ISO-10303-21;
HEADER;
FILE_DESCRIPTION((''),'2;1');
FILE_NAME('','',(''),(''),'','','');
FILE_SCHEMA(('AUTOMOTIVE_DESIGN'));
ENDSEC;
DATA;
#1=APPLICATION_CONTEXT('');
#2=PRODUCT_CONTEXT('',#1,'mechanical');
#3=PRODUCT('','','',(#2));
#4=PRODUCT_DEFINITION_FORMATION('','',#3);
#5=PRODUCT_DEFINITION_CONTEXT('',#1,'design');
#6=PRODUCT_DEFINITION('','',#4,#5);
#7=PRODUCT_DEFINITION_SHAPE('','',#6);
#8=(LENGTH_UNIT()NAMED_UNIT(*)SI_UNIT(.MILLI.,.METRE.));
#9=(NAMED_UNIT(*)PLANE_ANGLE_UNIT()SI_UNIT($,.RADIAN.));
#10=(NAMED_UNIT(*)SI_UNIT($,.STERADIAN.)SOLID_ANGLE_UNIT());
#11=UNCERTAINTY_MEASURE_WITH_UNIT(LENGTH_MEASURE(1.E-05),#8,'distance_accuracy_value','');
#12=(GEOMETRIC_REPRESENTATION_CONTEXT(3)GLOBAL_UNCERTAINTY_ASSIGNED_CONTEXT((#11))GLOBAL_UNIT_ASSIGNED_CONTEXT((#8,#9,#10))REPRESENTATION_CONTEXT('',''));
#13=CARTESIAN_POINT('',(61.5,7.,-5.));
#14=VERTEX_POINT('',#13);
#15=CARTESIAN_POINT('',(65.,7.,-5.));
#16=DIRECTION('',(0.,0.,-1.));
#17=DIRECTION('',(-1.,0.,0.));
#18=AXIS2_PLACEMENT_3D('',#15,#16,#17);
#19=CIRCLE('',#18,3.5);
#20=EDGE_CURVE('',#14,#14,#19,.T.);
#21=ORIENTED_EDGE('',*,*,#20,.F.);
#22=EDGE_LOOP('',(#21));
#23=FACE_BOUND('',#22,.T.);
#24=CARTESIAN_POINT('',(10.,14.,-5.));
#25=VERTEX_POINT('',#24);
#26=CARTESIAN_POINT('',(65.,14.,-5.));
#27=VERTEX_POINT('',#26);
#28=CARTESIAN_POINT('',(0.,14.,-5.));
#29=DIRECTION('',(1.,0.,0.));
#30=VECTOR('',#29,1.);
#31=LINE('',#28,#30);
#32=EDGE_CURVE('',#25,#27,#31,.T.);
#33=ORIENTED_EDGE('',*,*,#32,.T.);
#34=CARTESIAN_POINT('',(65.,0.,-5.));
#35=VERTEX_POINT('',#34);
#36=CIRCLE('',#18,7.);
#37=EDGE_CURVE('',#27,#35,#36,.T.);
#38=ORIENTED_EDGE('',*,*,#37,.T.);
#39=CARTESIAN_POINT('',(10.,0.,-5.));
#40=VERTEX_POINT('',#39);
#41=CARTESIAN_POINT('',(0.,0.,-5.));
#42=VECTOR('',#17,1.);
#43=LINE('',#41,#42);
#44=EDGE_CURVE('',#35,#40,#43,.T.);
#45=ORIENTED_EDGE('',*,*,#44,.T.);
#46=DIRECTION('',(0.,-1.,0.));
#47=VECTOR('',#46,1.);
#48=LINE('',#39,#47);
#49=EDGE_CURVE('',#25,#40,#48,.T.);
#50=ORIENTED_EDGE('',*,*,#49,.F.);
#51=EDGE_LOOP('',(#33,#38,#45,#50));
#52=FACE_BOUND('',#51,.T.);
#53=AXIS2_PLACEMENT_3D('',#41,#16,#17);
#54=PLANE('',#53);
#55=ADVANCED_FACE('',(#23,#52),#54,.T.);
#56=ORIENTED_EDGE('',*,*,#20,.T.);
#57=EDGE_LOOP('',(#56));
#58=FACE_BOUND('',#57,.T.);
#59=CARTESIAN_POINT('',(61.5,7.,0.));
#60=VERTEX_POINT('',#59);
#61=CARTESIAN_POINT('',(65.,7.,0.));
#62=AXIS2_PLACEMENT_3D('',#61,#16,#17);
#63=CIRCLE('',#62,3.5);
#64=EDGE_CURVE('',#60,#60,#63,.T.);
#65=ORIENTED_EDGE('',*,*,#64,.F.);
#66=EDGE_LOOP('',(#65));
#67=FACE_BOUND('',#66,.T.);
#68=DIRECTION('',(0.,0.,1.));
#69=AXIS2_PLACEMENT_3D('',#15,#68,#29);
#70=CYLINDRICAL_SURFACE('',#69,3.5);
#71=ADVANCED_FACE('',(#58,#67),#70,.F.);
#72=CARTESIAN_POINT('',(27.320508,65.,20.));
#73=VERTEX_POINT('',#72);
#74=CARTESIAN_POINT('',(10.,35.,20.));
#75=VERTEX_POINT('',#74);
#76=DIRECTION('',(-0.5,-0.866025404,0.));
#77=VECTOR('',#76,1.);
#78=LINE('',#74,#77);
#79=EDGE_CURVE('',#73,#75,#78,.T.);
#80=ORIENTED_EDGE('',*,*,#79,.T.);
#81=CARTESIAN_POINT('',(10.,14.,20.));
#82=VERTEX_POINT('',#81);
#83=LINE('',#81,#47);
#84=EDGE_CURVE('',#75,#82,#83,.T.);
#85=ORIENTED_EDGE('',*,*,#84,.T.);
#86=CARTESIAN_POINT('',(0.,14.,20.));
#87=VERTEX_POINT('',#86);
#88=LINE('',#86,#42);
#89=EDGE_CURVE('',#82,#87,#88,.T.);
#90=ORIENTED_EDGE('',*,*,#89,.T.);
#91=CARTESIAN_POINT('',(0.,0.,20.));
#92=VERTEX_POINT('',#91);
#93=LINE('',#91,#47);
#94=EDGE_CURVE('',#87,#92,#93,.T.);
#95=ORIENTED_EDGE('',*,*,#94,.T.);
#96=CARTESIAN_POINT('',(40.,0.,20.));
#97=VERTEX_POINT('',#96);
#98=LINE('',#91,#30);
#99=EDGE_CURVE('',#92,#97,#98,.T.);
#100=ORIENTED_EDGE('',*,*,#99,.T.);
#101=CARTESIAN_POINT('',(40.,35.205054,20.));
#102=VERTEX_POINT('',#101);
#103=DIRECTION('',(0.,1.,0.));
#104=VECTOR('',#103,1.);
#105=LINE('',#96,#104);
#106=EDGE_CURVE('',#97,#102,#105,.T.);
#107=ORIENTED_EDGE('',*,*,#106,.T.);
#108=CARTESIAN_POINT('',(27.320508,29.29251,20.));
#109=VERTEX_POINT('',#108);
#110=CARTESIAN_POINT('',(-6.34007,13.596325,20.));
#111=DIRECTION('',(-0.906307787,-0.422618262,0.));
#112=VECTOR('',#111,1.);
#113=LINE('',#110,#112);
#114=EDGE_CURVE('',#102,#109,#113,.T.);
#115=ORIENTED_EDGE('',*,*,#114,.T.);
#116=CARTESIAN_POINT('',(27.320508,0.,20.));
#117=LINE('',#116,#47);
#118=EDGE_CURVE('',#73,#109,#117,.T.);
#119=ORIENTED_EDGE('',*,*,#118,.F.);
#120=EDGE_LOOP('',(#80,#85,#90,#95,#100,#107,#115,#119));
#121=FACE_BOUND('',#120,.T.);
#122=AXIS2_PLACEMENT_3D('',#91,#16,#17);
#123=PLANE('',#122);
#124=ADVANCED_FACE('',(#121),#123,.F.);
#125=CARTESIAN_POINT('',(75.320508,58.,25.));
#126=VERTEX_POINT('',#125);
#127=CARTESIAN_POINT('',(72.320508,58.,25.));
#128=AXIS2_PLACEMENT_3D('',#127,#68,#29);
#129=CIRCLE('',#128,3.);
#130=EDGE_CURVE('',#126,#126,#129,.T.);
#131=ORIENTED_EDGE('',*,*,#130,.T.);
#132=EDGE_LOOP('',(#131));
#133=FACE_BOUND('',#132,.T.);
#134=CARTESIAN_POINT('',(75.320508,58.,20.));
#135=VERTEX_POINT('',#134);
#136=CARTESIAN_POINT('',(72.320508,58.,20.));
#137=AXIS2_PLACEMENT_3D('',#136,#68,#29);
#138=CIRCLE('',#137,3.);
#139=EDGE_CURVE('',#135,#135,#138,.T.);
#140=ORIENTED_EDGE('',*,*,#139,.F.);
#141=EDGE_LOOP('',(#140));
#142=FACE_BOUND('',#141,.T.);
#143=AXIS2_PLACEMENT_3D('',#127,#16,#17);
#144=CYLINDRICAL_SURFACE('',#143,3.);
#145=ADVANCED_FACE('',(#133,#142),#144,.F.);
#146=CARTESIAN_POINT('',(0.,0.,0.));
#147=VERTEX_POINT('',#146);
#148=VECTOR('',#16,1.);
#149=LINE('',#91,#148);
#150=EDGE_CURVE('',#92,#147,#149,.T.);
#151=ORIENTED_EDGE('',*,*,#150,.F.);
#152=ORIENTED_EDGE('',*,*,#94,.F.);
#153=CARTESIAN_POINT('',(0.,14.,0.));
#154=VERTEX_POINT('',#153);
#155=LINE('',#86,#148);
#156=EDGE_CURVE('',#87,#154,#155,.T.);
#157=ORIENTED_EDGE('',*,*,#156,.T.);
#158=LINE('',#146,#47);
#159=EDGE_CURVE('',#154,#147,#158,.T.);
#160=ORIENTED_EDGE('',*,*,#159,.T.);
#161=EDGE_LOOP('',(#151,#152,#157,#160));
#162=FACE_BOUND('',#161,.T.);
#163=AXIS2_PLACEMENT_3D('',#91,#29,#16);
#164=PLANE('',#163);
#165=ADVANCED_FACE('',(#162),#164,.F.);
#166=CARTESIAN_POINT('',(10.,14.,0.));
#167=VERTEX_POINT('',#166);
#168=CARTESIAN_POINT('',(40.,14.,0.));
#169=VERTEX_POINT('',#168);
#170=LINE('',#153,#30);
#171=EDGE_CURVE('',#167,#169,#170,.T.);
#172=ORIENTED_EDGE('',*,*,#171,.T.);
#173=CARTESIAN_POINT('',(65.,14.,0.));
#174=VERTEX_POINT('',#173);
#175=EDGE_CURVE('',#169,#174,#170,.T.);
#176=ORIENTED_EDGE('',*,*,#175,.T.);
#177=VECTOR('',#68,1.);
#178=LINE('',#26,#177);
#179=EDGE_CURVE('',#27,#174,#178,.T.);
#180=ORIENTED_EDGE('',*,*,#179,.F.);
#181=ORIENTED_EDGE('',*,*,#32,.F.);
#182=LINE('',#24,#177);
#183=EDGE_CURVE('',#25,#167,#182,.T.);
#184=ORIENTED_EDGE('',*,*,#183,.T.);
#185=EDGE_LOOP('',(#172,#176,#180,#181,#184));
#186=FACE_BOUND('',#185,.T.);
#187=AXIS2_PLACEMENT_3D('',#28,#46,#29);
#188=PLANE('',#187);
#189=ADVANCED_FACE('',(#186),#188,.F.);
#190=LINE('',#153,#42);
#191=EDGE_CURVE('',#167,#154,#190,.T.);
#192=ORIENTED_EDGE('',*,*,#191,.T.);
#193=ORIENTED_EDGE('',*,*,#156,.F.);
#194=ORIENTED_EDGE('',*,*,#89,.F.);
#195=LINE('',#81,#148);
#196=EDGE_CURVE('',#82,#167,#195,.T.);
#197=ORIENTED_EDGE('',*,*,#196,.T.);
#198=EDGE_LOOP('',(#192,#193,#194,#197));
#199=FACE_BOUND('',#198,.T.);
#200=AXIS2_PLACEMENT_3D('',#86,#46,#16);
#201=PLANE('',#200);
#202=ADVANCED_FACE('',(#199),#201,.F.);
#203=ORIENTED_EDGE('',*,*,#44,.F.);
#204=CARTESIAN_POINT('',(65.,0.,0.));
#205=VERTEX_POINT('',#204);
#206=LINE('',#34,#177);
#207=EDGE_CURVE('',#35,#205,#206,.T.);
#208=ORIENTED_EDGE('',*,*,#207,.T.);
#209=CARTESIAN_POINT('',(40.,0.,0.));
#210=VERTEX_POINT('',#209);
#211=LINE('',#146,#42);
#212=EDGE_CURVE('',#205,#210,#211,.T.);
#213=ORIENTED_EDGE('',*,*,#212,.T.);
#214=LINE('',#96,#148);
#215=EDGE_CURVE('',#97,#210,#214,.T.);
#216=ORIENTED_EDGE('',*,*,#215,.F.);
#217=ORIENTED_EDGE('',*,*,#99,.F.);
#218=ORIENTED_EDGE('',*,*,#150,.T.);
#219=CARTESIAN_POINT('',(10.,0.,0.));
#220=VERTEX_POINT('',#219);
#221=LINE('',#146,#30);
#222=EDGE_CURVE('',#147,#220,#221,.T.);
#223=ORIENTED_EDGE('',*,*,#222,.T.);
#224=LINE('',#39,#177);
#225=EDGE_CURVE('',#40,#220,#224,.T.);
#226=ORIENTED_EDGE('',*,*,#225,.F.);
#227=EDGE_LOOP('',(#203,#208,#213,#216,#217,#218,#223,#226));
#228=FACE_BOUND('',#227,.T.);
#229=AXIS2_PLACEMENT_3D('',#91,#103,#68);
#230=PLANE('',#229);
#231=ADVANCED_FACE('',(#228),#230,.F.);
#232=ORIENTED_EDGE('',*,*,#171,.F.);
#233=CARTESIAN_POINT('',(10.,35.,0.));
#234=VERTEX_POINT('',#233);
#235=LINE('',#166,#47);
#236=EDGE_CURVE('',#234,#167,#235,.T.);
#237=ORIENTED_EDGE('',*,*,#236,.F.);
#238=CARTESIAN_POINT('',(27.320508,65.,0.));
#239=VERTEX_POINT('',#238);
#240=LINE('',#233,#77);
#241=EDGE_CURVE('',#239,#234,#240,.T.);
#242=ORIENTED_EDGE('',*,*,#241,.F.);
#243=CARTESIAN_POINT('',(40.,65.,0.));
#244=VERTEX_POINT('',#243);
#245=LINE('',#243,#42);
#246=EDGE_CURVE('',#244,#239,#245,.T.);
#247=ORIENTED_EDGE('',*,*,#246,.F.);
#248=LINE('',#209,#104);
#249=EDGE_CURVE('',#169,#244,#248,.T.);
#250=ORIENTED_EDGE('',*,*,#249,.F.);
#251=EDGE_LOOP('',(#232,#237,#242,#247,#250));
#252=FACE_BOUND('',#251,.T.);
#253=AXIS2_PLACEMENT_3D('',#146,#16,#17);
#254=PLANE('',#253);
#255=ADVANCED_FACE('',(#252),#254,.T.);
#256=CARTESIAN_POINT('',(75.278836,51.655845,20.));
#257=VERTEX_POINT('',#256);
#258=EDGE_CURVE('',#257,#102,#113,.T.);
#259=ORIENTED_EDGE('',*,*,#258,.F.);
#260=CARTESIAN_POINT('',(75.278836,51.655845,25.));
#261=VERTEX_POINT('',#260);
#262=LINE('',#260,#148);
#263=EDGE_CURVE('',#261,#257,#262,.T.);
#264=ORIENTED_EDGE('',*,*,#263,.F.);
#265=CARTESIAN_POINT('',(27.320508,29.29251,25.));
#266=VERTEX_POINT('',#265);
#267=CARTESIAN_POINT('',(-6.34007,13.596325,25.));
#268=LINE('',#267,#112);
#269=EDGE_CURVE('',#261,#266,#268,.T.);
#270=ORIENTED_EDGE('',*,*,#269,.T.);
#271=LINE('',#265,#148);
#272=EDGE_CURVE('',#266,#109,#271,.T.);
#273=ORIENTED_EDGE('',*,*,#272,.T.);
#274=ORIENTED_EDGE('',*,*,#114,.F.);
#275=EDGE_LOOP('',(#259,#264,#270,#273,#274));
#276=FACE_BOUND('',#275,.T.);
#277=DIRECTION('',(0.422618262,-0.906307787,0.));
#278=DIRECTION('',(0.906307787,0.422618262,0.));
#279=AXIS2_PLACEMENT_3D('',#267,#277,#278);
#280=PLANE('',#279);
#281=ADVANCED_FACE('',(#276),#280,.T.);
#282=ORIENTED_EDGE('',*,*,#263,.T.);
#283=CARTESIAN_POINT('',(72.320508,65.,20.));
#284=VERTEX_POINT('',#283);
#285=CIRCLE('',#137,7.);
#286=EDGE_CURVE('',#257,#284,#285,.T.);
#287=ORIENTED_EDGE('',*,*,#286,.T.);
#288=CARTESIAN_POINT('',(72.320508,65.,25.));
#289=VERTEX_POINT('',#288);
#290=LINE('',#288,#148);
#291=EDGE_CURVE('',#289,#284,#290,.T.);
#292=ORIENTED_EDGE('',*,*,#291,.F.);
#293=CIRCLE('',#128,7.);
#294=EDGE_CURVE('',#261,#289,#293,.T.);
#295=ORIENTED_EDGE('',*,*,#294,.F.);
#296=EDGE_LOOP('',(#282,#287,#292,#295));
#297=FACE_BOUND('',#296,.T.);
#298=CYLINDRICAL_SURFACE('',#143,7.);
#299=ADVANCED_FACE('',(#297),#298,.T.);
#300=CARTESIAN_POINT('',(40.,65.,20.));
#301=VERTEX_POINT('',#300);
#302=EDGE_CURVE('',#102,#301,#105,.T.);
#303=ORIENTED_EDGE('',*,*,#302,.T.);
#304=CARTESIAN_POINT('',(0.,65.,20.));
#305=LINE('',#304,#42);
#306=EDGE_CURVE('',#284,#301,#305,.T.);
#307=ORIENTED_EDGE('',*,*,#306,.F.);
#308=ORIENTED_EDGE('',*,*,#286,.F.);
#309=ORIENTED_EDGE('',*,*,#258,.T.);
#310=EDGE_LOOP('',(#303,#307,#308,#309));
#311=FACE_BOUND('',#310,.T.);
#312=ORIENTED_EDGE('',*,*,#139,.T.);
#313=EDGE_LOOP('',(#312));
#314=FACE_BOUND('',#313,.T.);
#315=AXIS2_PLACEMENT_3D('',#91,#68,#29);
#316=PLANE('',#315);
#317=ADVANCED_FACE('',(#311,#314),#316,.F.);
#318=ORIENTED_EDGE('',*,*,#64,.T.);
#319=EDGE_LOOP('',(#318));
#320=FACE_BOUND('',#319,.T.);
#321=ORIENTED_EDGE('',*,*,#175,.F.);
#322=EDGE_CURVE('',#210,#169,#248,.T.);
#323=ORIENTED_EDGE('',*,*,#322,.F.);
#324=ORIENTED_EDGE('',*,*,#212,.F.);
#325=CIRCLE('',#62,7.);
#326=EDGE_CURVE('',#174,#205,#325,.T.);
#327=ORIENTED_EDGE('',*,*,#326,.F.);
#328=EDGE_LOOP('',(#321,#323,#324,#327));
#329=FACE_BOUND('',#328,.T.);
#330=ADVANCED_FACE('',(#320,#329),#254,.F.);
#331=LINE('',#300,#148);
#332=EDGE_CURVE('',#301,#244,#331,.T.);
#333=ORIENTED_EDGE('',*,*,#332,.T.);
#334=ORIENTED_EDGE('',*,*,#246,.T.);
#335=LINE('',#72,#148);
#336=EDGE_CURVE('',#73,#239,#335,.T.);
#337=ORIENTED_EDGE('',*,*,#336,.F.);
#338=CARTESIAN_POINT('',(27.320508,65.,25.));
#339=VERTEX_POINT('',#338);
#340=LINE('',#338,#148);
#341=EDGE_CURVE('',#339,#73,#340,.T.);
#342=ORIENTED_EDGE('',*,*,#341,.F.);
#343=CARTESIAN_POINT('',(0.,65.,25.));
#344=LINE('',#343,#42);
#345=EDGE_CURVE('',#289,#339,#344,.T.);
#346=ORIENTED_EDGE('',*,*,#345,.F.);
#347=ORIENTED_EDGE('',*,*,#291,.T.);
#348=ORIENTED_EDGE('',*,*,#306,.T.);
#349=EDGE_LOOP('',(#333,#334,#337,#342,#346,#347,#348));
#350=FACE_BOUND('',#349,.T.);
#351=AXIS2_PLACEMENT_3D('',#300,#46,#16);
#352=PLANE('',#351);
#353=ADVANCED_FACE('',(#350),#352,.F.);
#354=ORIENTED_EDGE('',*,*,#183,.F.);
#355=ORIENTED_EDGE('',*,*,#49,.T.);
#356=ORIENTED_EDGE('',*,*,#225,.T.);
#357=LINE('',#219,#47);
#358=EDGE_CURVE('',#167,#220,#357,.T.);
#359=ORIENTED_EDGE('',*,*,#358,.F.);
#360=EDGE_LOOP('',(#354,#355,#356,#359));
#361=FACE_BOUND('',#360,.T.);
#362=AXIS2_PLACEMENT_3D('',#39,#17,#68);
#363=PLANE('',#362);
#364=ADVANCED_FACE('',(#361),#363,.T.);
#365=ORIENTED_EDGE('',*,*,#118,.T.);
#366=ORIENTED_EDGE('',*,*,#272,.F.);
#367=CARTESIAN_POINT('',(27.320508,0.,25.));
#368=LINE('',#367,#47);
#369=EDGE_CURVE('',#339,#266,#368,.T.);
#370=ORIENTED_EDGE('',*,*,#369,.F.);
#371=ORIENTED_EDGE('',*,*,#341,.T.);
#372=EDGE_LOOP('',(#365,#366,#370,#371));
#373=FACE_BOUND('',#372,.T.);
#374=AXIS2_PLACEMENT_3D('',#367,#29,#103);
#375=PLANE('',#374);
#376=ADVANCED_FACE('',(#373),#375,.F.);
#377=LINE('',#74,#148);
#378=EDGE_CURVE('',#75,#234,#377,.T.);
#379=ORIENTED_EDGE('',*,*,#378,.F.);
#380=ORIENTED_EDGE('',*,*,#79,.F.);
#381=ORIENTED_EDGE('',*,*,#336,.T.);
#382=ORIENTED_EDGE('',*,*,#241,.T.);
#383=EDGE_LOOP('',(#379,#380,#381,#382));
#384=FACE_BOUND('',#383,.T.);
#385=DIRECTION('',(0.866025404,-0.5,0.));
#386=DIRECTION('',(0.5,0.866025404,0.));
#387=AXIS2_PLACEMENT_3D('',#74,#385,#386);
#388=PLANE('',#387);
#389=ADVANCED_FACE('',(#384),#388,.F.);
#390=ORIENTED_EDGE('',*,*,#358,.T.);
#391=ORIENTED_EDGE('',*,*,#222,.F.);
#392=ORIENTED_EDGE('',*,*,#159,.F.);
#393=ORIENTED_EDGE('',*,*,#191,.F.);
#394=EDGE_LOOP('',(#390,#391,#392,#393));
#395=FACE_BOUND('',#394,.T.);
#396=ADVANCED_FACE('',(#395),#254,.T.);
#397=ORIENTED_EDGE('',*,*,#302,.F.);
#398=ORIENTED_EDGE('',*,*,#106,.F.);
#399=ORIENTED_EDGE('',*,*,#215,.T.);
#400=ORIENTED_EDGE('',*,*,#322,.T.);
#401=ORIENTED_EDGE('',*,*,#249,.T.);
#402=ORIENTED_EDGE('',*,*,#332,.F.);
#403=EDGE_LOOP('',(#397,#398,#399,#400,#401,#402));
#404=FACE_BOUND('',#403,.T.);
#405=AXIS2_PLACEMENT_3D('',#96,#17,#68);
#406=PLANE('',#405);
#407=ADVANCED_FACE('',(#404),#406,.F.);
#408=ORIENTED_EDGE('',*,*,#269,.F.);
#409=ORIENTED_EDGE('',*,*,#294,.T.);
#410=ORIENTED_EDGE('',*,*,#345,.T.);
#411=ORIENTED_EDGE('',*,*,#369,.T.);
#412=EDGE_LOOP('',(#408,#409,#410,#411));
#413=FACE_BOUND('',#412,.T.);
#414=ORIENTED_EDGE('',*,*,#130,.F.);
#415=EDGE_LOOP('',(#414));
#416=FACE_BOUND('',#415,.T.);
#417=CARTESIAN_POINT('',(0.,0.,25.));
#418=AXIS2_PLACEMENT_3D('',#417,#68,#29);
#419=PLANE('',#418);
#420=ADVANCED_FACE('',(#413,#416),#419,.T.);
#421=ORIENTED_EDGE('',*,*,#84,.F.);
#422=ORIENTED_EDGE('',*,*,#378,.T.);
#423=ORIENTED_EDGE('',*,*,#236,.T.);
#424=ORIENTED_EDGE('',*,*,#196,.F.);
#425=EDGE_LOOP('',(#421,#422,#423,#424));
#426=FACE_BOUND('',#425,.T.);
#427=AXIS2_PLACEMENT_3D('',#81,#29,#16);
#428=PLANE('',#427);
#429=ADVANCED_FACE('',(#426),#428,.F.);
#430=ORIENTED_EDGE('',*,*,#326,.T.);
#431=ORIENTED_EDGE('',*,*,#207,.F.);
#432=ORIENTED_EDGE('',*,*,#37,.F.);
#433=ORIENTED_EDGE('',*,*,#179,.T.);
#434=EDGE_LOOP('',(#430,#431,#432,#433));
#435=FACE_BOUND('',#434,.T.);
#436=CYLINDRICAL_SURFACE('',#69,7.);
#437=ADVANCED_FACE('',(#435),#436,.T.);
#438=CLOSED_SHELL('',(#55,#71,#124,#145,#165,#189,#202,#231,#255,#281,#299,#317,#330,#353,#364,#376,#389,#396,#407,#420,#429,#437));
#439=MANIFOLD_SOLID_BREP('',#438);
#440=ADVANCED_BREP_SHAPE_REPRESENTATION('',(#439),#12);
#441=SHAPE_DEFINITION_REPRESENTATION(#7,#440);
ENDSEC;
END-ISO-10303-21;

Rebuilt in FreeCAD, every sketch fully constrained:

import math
import FreeCAD as App
import Part
import Sketcher

V = App.Vector
Q = App.Units.Quantity


def add_polygon(sketch, points):
    """Adds a closed chain of lines whose ends are joined by coincident constraints."""
    first, n = sketch.GeometryCount, len(points)
    for a, b in zip(points, points[1:] + points[:1]):
        sketch.addGeometry(Part.LineSegment(App.Vector(*a, 0), App.Vector(*b, 0)), False)
    for i in range(n):
        sketch.addConstraint(Sketcher.Constraint("Coincident", first + i, 2, first + (i + 1) % n, 1))

doc = App.newDocument("Part")
params = doc.addObject("Spreadsheet::Sheet", "Params")
for row, (alias, value) in enumerate([
    ("sketch1_width", "40 mm"),
    ("sketch1_width2", "10 mm"),
    ("sketch1_height", "65 mm"),
    ("sketch1_height2", "21 mm"),
    ("sketch1_height3", "14 mm"),
    ("pad1_length", "20 mm"),
    ("sketch2_diameter", "6 mm"),
    ("sketch2_radius", "7 mm"),
    ("sketch2_width", "45 mm"),
    ("pad2_length", "5 mm"),
    ("sketch3_diameter", "7 mm"),
    ("sketch3_radius", "7 mm"),
    ("sketch3_width", "55 mm"),
    ("pad3_length", "5 mm"),
], start=1):
    params.set(f"A{row}", alias)
    params.set(f"B{row}", "=" + value)
    params.setAlias(f"B{row}", alias)

body = doc.addObject("PartDesign::Body", "Body")

# Sketch on XY plane
sketch1 = doc.addObject("Sketcher::SketchObject", "Sketch")
body.addObject(sketch1)
sketch1.AttachmentSupport = (doc.XY_Plane, [""])
sketch1.MapMode = "FlatFace"
add_polygon(sketch1, [(0, 0), (40, 0), (40, 65), (27, 65), (10, 35), (10, 14), (0, 14)])  # lines 0-6
sketch1.addConstraint(Sketcher.Constraint("Horizontal", 0))
sketch1.addConstraint(Sketcher.Constraint("Vertical", 1))
sketch1.addConstraint(Sketcher.Constraint("Horizontal", 2))
sketch1.addConstraint(Sketcher.Constraint("Vertical", 4))
sketch1.addConstraint(Sketcher.Constraint("Horizontal", 5))
sketch1.addConstraint(Sketcher.Constraint("Vertical", 6))
sketch1.addConstraint(Sketcher.Constraint("Coincident", 6, 2, -1, 1))
sketch1.addConstraint(Sketcher.Constraint("DistanceX", 0, 1, 0, 2, 40.0))
sketch1.addConstraint(Sketcher.Constraint("DistanceX", 5, 2, 5, 1, 10.0))
sketch1.addConstraint(Sketcher.Constraint("DistanceY", 1, 1, 1, 2, 65.0))
sketch1.addConstraint(Sketcher.Constraint("DistanceY", 4, 2, 4, 1, 21.0))
sketch1.addConstraint(Sketcher.Constraint("DistanceY", 6, 2, 6, 1, 14.0))
sketch1.addConstraint(Sketcher.Constraint("Angle", 3, Q("-120 deg")))
sketch1.setExpression("Constraints[14]", "Params.sketch1_width")
sketch1.setExpression("Constraints[15]", "Params.sketch1_width2")
sketch1.setExpression("Constraints[16]", "Params.sketch1_height")
sketch1.setExpression("Constraints[17]", "Params.sketch1_height2")
sketch1.setExpression("Constraints[18]", "Params.sketch1_height3")
pad1 = doc.addObject("PartDesign::Pad", "Pad")
body.addObject(pad1)
pad1.Profile = sketch1
pad1.setExpression("Length", "Params.pad1_length")

# Sketch on XY plane
sketch2 = doc.addObject("Sketcher::SketchObject", "Sketch001")
body.addObject(sketch2)
sketch2.AttachmentSupport = (doc.XY_Plane, [""])
sketch2.MapMode = "FlatFace"
sketch2.AttachmentOffset = App.Placement(V(0, 0, 20), App.Rotation())
sketch2.addGeometry(Part.LineSegment(V(27.3, 65, 0), V(27.3, 29.3, 0)), False)
sketch2.addGeometry(Part.LineSegment(V(27.3, 29.3, 0), V(40, 35.2, 0)), False)
sketch2.addGeometry(Part.LineSegment(V(40, 35.2, 0), V(75.3, 51.7, 0)), False)
sketch2.addGeometry(Part.ArcOfCircle(Part.Circle(V(72.3, 58, 0), V(0, 0, 1), 7), math.radians(-65), math.radians(90)), False)
sketch2.addGeometry(Part.LineSegment(V(72.3, 65, 0), V(27.3, 65, 0)), False)
sketch2.addGeometry(Part.Circle(V(72.3, 58, 0), V(0, 0, 1), 3), False)
sketch2.addConstraint(Sketcher.Constraint("Coincident", 0, 2, 1, 1))
sketch2.addConstraint(Sketcher.Constraint("Coincident", 1, 2, 2, 1))
sketch2.addConstraint(Sketcher.Constraint("Tangent", 2, 2, 3, 1))
sketch2.addConstraint(Sketcher.Constraint("Tangent", 3, 2, 4, 1))
sketch2.addConstraint(Sketcher.Constraint("Coincident", 4, 2, 0, 1))
sketch2.addConstraint(Sketcher.Constraint("Vertical", 0))
sketch2.addConstraint(Sketcher.Constraint("Horizontal", 4))
sketch2.addConstraint(Sketcher.Constraint("Coincident", 5, 3, 3, 3))
sketch2.addConstraint(Sketcher.Constraint("Parallel", 1, 2))
sketch2.addConstraint(Sketcher.Constraint("Diameter", 5, 6.0))
sketch2.addConstraint(Sketcher.Constraint("Radius", 3, 7.0))
sketch2.addConstraint(Sketcher.Constraint("DistanceX", 4, 2, 4, 1, 45.0))
sketch2.addConstraint(Sketcher.Constraint("Angle", 1, Q("25 deg")))
sketch2.addConstraint(Sketcher.Constraint("DistanceY", -1, 1, 3, 3, 58.0))
sketch2.addConstraint(Sketcher.Constraint("DistanceX", -1, 1, 1, 2, 40.0))
sketch2.addConstraint(Sketcher.Constraint("Distance", 1, 13.990271))
sketch2.setExpression("Constraints[9]", "Params.sketch2_diameter")
sketch2.setExpression("Constraints[10]", "Params.sketch2_radius")
sketch2.setExpression("Constraints[11]", "Params.sketch2_width")
pad2 = doc.addObject("PartDesign::Pad", "Pad001")
body.addObject(pad2)
pad2.Profile = sketch2
pad2.setExpression("Length", "Params.pad2_length")

# Sketch on XY plane
sketch3 = doc.addObject("Sketcher::SketchObject", "Sketch002")
body.addObject(sketch3)
sketch3.AttachmentSupport = (doc.XY_Plane, [""])
sketch3.MapMode = "FlatFace"
sketch3.addGeometry(Part.ArcOfCircle(Part.Circle(V(65, 7, 0), V(0, 0, 1), 7), math.radians(-90), math.radians(90)), False)
sketch3.addGeometry(Part.LineSegment(V(65, 0, 0), V(10, 0, 0)), False)
sketch3.addGeometry(Part.LineSegment(V(10, 0, 0), V(10, 14, 0)), False)
sketch3.addGeometry(Part.LineSegment(V(10, 14, 0), V(65, 14, 0)), False)
sketch3.addGeometry(Part.Circle(V(65, 7, 0), V(0, 0, 1), 3.5), False)
sketch3.addConstraint(Sketcher.Constraint("Tangent", 0, 1, 1, 1))
sketch3.addConstraint(Sketcher.Constraint("Coincident", 1, 2, 2, 1))
sketch3.addConstraint(Sketcher.Constraint("Coincident", 2, 2, 3, 1))
sketch3.addConstraint(Sketcher.Constraint("Tangent", 3, 2, 0, 2))
sketch3.addConstraint(Sketcher.Constraint("Horizontal", 1))
sketch3.addConstraint(Sketcher.Constraint("Vertical", 2))
sketch3.addConstraint(Sketcher.Constraint("Horizontal", 3))
sketch3.addConstraint(Sketcher.Constraint("Coincident", 4, 3, 0, 3))
sketch3.addConstraint(Sketcher.Constraint("PointOnObject", 0, 1, -1))
sketch3.addConstraint(Sketcher.Constraint("Diameter", 4, 7.0))
sketch3.addConstraint(Sketcher.Constraint("Radius", 0, 7.0))
sketch3.addConstraint(Sketcher.Constraint("DistanceX", 1, 2, 1, 1, 55.0))
sketch3.addConstraint(Sketcher.Constraint("DistanceX", -1, 1, 0, 3, 65.0))
sketch3.setExpression("Constraints[9]", "Params.sketch3_diameter")
sketch3.setExpression("Constraints[10]", "Params.sketch3_radius")
sketch3.setExpression("Constraints[11]", "Params.sketch3_width")
pad3 = doc.addObject("PartDesign::Pad", "Pad002")
body.addObject(pad3)
pad3.Profile = sketch3
pad3.setExpression("Length", "Params.pad3_length")
pad3.Reversed = True

doc.recompute()
